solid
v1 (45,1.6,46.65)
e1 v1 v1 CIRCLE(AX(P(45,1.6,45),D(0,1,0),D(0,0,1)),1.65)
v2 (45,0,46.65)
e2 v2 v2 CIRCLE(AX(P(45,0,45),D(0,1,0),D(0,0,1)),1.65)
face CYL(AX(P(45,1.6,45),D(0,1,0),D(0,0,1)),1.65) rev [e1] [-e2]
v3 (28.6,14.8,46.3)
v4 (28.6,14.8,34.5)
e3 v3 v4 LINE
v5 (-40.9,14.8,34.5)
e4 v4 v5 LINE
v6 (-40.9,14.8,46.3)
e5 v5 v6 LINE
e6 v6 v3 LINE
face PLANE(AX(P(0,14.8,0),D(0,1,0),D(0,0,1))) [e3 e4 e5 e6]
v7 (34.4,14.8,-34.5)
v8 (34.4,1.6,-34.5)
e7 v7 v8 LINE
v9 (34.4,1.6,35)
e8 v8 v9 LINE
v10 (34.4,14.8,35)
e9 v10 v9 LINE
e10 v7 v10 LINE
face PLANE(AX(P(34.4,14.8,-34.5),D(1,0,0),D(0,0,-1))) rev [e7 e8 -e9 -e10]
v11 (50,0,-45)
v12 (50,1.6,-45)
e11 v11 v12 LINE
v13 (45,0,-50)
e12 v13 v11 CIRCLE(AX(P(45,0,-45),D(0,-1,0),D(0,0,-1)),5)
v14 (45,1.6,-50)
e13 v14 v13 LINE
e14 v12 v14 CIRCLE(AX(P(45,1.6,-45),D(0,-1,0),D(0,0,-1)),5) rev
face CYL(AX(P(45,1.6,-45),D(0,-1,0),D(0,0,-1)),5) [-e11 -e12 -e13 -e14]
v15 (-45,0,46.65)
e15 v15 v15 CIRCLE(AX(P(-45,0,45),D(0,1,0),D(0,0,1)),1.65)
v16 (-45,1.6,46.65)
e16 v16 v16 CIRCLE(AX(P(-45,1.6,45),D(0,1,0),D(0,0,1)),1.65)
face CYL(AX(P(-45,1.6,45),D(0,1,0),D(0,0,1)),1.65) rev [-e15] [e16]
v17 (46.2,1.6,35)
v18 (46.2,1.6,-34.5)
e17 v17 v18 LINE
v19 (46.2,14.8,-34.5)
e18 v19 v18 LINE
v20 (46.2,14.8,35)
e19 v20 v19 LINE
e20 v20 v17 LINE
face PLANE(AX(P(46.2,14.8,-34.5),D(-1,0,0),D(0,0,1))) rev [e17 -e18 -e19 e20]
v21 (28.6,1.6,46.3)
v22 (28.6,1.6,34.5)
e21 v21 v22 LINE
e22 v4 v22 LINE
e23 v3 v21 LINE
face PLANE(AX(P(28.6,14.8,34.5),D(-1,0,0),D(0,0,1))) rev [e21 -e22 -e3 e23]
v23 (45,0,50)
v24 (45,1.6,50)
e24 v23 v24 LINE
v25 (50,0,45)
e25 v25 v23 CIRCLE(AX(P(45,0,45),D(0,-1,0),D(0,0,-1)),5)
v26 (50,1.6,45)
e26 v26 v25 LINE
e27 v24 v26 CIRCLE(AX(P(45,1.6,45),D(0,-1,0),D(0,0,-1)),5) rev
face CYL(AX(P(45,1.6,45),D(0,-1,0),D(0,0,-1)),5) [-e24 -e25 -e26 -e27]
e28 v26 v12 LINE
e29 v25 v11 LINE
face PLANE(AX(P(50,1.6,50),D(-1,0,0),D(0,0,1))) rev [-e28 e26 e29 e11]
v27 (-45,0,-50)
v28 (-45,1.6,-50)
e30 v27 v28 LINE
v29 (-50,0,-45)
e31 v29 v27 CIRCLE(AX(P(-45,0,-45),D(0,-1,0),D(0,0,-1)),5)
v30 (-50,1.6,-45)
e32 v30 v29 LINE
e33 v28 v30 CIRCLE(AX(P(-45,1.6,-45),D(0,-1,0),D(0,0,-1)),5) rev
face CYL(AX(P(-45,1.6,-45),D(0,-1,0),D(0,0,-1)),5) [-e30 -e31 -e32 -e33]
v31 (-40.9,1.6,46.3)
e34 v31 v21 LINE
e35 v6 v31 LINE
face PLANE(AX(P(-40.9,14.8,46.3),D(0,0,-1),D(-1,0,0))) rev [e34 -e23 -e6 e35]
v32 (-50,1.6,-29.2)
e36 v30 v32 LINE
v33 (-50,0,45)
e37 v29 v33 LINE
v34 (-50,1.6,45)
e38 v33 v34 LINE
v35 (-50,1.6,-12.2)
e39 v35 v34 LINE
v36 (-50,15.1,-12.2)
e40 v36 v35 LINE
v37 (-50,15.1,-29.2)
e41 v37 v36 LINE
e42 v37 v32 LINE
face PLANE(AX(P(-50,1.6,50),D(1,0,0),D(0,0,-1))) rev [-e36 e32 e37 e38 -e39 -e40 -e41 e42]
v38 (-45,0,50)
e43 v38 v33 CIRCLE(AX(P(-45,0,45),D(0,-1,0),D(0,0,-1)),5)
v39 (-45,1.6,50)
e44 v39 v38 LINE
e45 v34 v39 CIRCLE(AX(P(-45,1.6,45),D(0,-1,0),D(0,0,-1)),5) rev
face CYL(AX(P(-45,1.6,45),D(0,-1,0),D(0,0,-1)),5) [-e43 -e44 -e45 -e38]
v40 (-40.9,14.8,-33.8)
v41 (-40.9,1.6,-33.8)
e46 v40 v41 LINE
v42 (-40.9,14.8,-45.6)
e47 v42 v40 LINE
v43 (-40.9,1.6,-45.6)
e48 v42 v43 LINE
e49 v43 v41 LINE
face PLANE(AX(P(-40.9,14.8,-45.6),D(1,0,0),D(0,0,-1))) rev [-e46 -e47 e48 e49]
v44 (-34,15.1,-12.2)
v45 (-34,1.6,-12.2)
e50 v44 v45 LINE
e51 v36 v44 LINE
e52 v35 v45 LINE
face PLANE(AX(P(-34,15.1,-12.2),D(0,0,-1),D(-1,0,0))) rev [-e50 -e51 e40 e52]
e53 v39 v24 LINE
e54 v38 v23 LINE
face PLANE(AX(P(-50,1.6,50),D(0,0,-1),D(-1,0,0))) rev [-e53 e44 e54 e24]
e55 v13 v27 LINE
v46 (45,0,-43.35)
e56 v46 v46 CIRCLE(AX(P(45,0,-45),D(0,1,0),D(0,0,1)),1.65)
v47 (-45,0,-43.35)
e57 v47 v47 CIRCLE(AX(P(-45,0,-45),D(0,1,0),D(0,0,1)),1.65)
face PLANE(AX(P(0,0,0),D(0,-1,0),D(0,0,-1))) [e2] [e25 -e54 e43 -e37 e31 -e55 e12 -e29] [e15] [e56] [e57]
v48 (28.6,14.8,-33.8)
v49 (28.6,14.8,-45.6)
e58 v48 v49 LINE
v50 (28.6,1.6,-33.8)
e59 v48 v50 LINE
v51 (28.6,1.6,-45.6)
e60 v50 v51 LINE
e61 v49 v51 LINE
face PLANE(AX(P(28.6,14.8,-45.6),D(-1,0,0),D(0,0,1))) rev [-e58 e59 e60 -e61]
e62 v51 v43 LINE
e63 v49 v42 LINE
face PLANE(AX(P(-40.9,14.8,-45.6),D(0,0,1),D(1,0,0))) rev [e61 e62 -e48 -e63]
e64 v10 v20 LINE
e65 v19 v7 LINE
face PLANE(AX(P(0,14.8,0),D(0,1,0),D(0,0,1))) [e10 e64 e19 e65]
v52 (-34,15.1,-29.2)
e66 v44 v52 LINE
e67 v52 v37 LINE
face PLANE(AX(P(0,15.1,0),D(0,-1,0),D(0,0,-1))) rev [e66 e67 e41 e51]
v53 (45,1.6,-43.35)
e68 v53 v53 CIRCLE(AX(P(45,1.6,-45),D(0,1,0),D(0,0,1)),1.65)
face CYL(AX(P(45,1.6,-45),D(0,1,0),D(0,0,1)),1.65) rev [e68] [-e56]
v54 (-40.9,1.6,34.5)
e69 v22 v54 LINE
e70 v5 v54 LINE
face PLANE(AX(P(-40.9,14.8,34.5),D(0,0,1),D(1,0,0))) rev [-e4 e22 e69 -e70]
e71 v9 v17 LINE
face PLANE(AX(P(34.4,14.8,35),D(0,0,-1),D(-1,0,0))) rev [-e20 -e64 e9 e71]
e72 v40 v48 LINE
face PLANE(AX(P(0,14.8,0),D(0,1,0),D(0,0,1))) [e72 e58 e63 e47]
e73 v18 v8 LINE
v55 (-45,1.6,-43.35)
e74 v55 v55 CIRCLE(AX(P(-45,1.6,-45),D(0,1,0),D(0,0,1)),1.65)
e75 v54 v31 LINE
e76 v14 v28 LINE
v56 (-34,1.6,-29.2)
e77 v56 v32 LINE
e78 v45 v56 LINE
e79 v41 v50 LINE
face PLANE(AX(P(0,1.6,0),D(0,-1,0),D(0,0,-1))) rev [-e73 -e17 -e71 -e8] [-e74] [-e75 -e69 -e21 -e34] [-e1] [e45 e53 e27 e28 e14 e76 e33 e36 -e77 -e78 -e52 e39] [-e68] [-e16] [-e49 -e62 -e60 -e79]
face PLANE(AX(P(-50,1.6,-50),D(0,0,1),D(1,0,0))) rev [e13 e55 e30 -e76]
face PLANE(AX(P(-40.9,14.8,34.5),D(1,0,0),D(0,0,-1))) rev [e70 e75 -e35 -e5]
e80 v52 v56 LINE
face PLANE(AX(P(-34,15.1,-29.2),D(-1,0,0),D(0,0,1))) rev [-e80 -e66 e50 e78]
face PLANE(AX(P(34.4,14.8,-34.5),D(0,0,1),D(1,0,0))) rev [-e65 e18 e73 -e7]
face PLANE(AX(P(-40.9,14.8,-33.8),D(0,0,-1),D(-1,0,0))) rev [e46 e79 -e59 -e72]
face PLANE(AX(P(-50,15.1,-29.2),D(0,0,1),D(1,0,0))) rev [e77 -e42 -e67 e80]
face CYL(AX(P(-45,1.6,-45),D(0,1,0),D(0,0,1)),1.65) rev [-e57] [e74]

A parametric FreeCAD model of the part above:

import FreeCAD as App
import Part
import Sketcher


def edges_at(feature, points):
    """Names of the edges that pass closest to the given points."""
    edges = feature.Shape.Edges
    near = lambda p: min(range(len(edges)), key=lambda i: edges[i].distToShape(Part.Vertex(*p))[0])
    return sorted({f"Edge{near(p) + 1}" for p in points})


def add_polygon(sketch, points):
    """Adds a closed chain of lines whose ends are joined by coincident constraints."""
    first, n = sketch.GeometryCount, len(points)
    for a, b in zip(points, points[1:] + points[:1]):
        sketch.addGeometry(Part.LineSegment(App.Vector(*a, 0), App.Vector(*b, 0)), False)
    for i in range(n):
        sketch.addConstraint(Sketcher.Constraint("Coincident", first + i, 2, first + (i + 1) % n, 1))

doc = App.newDocument("Part")
body = doc.addObject("PartDesign::Body", "Body")

# Sketch on XZ plane
sketch1 = body.newObject("Sketcher::SketchObject", "Sketch")
sketch1.AttachmentSupport = (doc.getObject("XZ_Plane"), [""])
sketch1.MapMode = "FlatFace"
add_polygon(sketch1, [(-50, -50), (-50, 50), (50, 50), (50, -50)])  # lines 0-3
sketch1.addConstraint(Sketcher.Constraint("Vertical", 0))
sketch1.addConstraint(Sketcher.Constraint("Horizontal", 1))
sketch1.addConstraint(Sketcher.Constraint("Vertical", 2))
sketch1.addConstraint(Sketcher.Constraint("Horizontal", 3))
sketch1.addConstraint(Sketcher.Constraint("Symmetric", 0, 2, 2, 2, -1, 1))
sketch1.addConstraint(Sketcher.Constraint("Equal", 3, 0))
sketch1.addConstraint(Sketcher.Constraint("DistanceX", 1, 1, 1, 2, 100.0))
pad1 = body.newObject("PartDesign::Pad", "Pad")
pad1.Profile = sketch1
pad1.Length = 1.6
pad1.Reversed = True
doc.recompute()

fillet = body.newObject("PartDesign::Fillet", "Fillet")
fillet.Base = (pad1, edges_at(pad1, [
    (50, 0.8, 50),
    (-50, 0.8, 50),
    (-50, 0.8, -50),
    (50, 0.8, -50),
]))
fillet.Radius = 5

# Sketch on XZ plane
sketch2 = body.newObject("Sketcher::SketchObject", "Sketch001")
sketch2.AttachmentSupport = (doc.getObject("XZ_Plane"), [""])
sketch2.MapMode = "FlatFace"
sketch2.AttachmentOffset = App.Placement(App.Vector(0, 0, -1.6), App.Rotation())
sketch2.addGeometry(Part.Circle(App.Vector(45, 45, 0), App.Vector(0, 0, 1), 1.6), False)
sketch2.addGeometry(Part.Circle(App.Vector(-45, 45, 0), App.Vector(0, 0, 1), 1.6), False)
sketch2.addGeometry(Part.Circle(App.Vector(-45, -45, 0), App.Vector(0, 0, 1), 1.6), False)
sketch2.addGeometry(Part.Circle(App.Vector(45, -45, 0), App.Vector(0, 0, 1), 1.6), False)
sketch2.addConstraint(Sketcher.Constraint("Equal", 0, 1))
sketch2.addConstraint(Sketcher.Constraint("Equal", 1, 2))
sketch2.addConstraint(Sketcher.Constraint("Equal", 2, 3))
sketch2.addConstraint(Sketcher.Constraint("Symmetric", 0, 3, 2, 3, -1, 1))
sketch2.addConstraint(Sketcher.Constraint("Symmetric", 1, 3, 3, 3, -1, 1))
sketch2.addConstraint(Sketcher.Constraint("Symmetric", 0, 3, 1, 3, -2))
sketch2.addConstraint(Sketcher.Constraint("Diameter", 0, 3.3))
sketch2.addConstraint(Sketcher.Constraint("DistanceX", -1, 1, 0, 3, 45.0))
sketch2.addConstraint(Sketcher.Constraint("DistanceY", -1, 1, 0, 3, 45.0))
doc.recompute()
hole = body.newObject("PartDesign::Hole", "Hole")
hole.Profile = sketch2
hole.ThreadType = "None"
hole.Diameter = 3.3
hole.DepthType = "ThroughAll"
hole.Reversed = True

# Sketch on XZ plane
sketch3 = body.newObject("Sketcher::SketchObject", "Sketch002")
sketch3.AttachmentSupport = (doc.getObject("XZ_Plane"), [""])
sketch3.MapMode = "FlatFace"
sketch3.AttachmentOffset = App.Placement(App.Vector(0, 0, -1.6), App.Rotation())
add_polygon(sketch3, [(-50, -29), (-50, -12), (-34, -12), (-34, -29)])  # lines 0-3
sketch3.addConstraint(Sketcher.Constraint("Vertical", 0))
sketch3.addConstraint(Sketcher.Constraint("Horizontal", 1))
sketch3.addConstraint(Sketcher.Constraint("Vertical", 2))
sketch3.addConstraint(Sketcher.Constraint("Horizontal", 3))
sketch3.addConstraint(Sketcher.Constraint("DistanceX", 1, 1, 1, 2, 16.0))
sketch3.addConstraint(Sketcher.Constraint("DistanceY", 0, 1, 0, 2, 17.0))
sketch3.addConstraint(Sketcher.Constraint("DistanceX", 0, 2, -1, 1, 50.0))
sketch3.addConstraint(Sketcher.Constraint("DistanceY", 0, 2, -1, 1, 12.2))
pad2 = body.newObject("PartDesign::Pad", "Pad001")
pad2.Profile = sketch3
pad2.Length = 13.5
pad2.Reversed = True

# Sketch on XZ plane
sketch4 = body.newObject("Sketcher::SketchObject", "Sketch003")
sketch4.AttachmentSupport = (doc.getObject("XZ_Plane"), [""])
sketch4.MapMode = "FlatFace"
sketch4.AttachmentOffset = App.Placement(App.Vector(0, 0, -1.6), App.Rotation())
add_polygon(sketch4, [(-41, -46), (-41, -34), (29, -34), (29, -46)])  # lines 0-3
add_polygon(sketch4, [(34, -34), (34, 35), (46, 35), (46, -34)])  # lines 4-7
add_polygon(sketch4, [(-41, 34), (-41, 46), (29, 46), (29, 34)])  # lines 8-11
sketch4.addConstraint(Sketcher.Constraint("Vertical", 0))
sketch4.addConstraint(Sketcher.Constraint("Horizontal", 1))
sketch4.addConstraint(Sketcher.Constraint("Vertical", 2))
sketch4.addConstraint(Sketcher.Constraint("Horizontal", 3))
sketch4.addConstraint(Sketcher.Constraint("Vertical", 4))
sketch4.addConstraint(Sketcher.Constraint("Horizontal", 5))
sketch4.addConstraint(Sketcher.Constraint("Vertical", 6))
sketch4.addConstraint(Sketcher.Constraint("Horizontal", 7))
sketch4.addConstraint(Sketcher.Constraint("Vertical", 8))
sketch4.addConstraint(Sketcher.Constraint("Horizontal", 9))
sketch4.addConstraint(Sketcher.Constraint("Vertical", 10))
sketch4.addConstraint(Sketcher.Constraint("Horizontal", 11))
sketch4.addConstraint(Sketcher.Constraint("Vertical", 3, 2, 8, 2))
sketch4.addConstraint(Sketcher.Constraint("Vertical", 2, 2, 9, 2))
sketch4.addConstraint(Sketcher.Constraint("Equal", 7, 0))
sketch4.addConstraint(Sketcher.Constraint("Equal", 11, 4))
sketch4.addConstraint(Sketcher.Constraint("Equal", 2, 8))
sketch4.addConstraint(Sketcher.Constraint("DistanceX", 1, 1, 1, 2, 69.5))
sketch4.addConstraint(Sketcher.Constraint("DistanceX", 5, 1, 5, 2, 11.8))
sketch4.addConstraint(Sketcher.Constraint("DistanceY", -1, 1, 4, 2, 35.0))
sketch4.addConstraint(Sketcher.Constraint("DistanceY", 7, 2, 10, 2, 69.0))
sketch4.addConstraint(Sketcher.Constraint("DistanceX", 0, 2, -1, 1, 40.9))
sketch4.addConstraint(Sketcher.Constraint("DistanceY", 0, 2, -1, 1, 33.8))
sketch4.addConstraint(Sketcher.Constraint("DistanceX", -1, 1, 4, 2, 34.4))
pad3 = body.newObject("PartDesign::Pad", "Pad002")
pad3.Profile = sketch4
pad3.Length = 13.2
pad3.Reversed = True

doc.recompute()
